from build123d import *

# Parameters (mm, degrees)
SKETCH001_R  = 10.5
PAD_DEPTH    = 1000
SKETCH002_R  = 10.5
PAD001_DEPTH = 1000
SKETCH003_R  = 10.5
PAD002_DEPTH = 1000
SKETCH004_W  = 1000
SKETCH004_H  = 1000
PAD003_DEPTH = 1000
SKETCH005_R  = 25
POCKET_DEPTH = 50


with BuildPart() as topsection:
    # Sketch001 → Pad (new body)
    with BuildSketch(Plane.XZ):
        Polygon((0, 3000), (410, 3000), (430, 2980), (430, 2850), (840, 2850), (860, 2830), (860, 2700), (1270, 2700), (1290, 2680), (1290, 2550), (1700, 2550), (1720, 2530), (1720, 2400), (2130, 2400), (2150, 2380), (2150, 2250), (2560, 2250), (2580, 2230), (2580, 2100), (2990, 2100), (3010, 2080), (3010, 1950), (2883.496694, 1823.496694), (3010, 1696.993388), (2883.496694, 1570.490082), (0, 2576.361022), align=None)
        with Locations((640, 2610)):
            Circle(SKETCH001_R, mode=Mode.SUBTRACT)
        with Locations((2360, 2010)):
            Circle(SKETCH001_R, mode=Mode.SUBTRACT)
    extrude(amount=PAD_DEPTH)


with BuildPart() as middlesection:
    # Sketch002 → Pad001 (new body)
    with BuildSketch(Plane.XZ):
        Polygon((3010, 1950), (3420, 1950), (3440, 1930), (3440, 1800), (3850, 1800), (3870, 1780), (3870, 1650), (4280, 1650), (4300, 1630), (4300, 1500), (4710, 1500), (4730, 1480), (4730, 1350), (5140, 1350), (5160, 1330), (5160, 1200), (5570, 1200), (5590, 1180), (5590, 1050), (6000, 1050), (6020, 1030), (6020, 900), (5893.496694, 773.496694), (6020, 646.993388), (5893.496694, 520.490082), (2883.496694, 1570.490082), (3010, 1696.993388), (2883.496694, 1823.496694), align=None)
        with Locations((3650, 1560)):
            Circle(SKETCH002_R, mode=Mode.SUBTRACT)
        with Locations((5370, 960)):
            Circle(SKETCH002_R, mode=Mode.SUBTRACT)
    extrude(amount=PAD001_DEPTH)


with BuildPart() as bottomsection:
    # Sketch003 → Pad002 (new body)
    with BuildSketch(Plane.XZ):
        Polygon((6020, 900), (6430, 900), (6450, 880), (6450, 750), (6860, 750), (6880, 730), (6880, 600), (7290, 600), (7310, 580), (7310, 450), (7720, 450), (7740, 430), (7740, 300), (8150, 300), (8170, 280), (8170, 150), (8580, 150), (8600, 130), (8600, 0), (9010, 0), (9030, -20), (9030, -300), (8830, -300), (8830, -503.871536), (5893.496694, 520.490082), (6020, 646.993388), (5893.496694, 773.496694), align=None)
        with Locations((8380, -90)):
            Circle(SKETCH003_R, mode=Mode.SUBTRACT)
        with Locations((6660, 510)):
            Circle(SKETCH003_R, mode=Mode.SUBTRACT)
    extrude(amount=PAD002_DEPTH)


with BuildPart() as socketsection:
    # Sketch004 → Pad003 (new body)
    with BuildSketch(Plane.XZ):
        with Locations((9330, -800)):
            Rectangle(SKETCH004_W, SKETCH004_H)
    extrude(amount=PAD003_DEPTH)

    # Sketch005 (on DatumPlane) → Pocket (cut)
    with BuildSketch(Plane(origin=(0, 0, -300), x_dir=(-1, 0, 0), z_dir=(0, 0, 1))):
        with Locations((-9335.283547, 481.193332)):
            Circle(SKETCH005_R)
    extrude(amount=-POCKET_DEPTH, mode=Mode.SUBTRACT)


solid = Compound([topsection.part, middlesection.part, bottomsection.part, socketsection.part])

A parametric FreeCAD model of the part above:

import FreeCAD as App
import Part
import Sketcher

V = App.Vector
Q = App.Units.Quantity

doc = App.newDocument("Part")
body = doc.addObject("PartDesign::Body", "Body")

# Sketch on XZ plane
sketch1 = body.newObject("Sketcher::SketchObject", "Sketch")
sketch1.AttachmentSupport = (doc.getObject("XZ_Plane"), [""])
sketch1.MapMode = "FlatFace"
sketch1.addGeometry([
    Part.LineSegment(V(410, 3000, 0), V(0, 3000, 0)),  # 0
    Part.LineSegment(V(0, 3000, 0), V(0, 2576, 0)),  # 1
    Part.LineSegment(V(0, 2576, 0), V(2883, 1570, 0)),  # 2
    Part.LineSegment(V(2883, 1570, 0), V(3010, 1697, 0)),  # 3
    Part.LineSegment(V(3010, 1697, 0), V(2883, 1823, 0)),  # 4
    Part.LineSegment(V(2883, 1823, 0), V(3010, 1950, 0)),  # 5
    Part.LineSegment(V(3010, 1950, 0), V(3010, 2080, 0)),  # 6
    Part.LineSegment(V(3010, 2080, 0), V(2990, 2100, 0)),  # 7
    Part.LineSegment(V(2990, 2100, 0), V(2580, 2100, 0)),  # 8
    Part.LineSegment(V(2580, 2100, 0), V(2580, 2230, 0)),  # 9
    Part.LineSegment(V(2580, 2230, 0), V(2560, 2250, 0)),  # 10
    Part.LineSegment(V(2560, 2250, 0), V(2150, 2250, 0)),  # 11
    Part.LineSegment(V(2150, 2250, 0), V(2150, 2380, 0)),  # 12
    Part.LineSegment(V(2150, 2380, 0), V(2130, 2400, 0)),  # 13
    Part.LineSegment(V(2130, 2400, 0), V(1720, 2400, 0)),  # 14
    Part.LineSegment(V(1720, 2400, 0), V(1720, 2530, 0)),  # 15
    Part.LineSegment(V(1720, 2530, 0), V(1700, 2550, 0)),  # 16
    Part.LineSegment(V(1700, 2550, 0), V(1290, 2550, 0)),  # 17
    Part.LineSegment(V(1290, 2550, 0), V(1290, 2680, 0)),  # 18
    Part.LineSegment(V(1290, 2680, 0), V(1270, 2700, 0)),  # 19
    Part.LineSegment(V(1270, 2700, 0), V(860, 2700, 0)),  # 20
    Part.LineSegment(V(860, 2700, 0), V(860, 2830, 0)),  # 21
    Part.LineSegment(V(860, 2830, 0), V(840, 2850, 0)),  # 22
    Part.LineSegment(V(840, 2850, 0), V(430, 2850, 0)),  # 23
    Part.LineSegment(V(430, 2850, 0), V(430, 2980, 0)),  # 24
    Part.LineSegment(V(430, 2980, 0), V(410, 3000, 0)),  # 25
    Part.Circle(V(2360, 2010, 0), V(0, 0, 1), 10),  # 26
    Part.Circle(V(640, 2610, 0), V(0, 0, 1), 10),  # 27
], False)
sketch1.addConstraint([
    Sketcher.Constraint("Coincident", 0, 2, 1, 1),
    Sketcher.Constraint("Coincident", 1, 2, 2, 1),
    Sketcher.Constraint("Coincident", 2, 2, 3, 1),
    Sketcher.Constraint("Coincident", 3, 2, 4, 1),
    Sketcher.Constraint("Coincident", 4, 2, 5, 1),
    Sketcher.Constraint("Coincident", 5, 2, 6, 1),
    Sketcher.Constraint("Coincident", 6, 2, 7, 1),
    Sketcher.Constraint("Coincident", 7, 2, 8, 1),
    Sketcher.Constraint("Coincident", 8, 2, 9, 1),
    Sketcher.Constraint("Coincident", 9, 2, 10, 1),
    Sketcher.Constraint("Coincident", 10, 2, 11, 1),
    Sketcher.Constraint("Coincident", 11, 2, 12, 1),
    Sketcher.Constraint("Coincident", 12, 2, 13, 1),
    Sketcher.Constraint("Coincident", 13, 2, 14, 1),
    Sketcher.Constraint("Coincident", 14, 2, 15, 1),
    Sketcher.Constraint("Coincident", 15, 2, 16, 1),
    Sketcher.Constraint("Coincident", 16, 2, 17, 1),
    Sketcher.Constraint("Coincident", 17, 2, 18, 1),
    Sketcher.Constraint("Coincident", 18, 2, 19, 1),
    Sketcher.Constraint("Coincident", 19, 2, 20, 1),
    Sketcher.Constraint("Coincident", 20, 2, 21, 1),
    Sketcher.Constraint("Coincident", 21, 2, 22, 1),
    Sketcher.Constraint("Coincident", 22, 2, 23, 1),
    Sketcher.Constraint("Coincident", 23, 2, 24, 1),
    Sketcher.Constraint("Coincident", 24, 2, 25, 1),
    Sketcher.Constraint("Coincident", 25, 2, 0, 1),
    Sketcher.Constraint("Horizontal", 0),
    Sketcher.Constraint("Vertical", 1),
    Sketcher.Constraint("Vertical", 6),
    Sketcher.Constraint("Horizontal", 8),
    Sketcher.Constraint("Vertical", 9),
    Sketcher.Constraint("Horizontal", 11),
    Sketcher.Constraint("Vertical", 12),
    Sketcher.Constraint("Horizontal", 14),
    Sketcher.Constraint("Vertical", 15),
    Sketcher.Constraint("Horizontal", 17),
    Sketcher.Constraint("Vertical", 18),
    Sketcher.Constraint("Horizontal", 20),
    Sketcher.Constraint("Vertical", 21),
    Sketcher.Constraint("Horizontal", 23),
    Sketcher.Constraint("Vertical", 24),
    Sketcher.Constraint("Equal", 26, 27),
    Sketcher.Constraint("PointOnObject", 0, 2, -2),
    Sketcher.Constraint("Perpendicular", 3, 4),
    Sketcher.Constraint("Perpendicular", 4, 5),
    Sketcher.Constraint("Perpendicular", 5, 7),
    Sketcher.Constraint("Parallel", 7, 10),
    Sketcher.Constraint("Parallel", 10, 13),
    Sketcher.Constraint("Parallel", 13, 16),
    Sketcher.Constraint("Parallel", 16, 19),
    Sketcher.Constraint("Parallel", 19, 22),
    Sketcher.Constraint("Parallel", 22, 25),
    Sketcher.Constraint("Vertical", 2, 2, 4, 2),
    Sketcher.Constraint("Vertical", 3, 2, 5, 2),
    Sketcher.Constraint("Equal", 0, 8),
    Sketcher.Constraint("Equal", 8, 11),
    Sketcher.Constraint("Equal", 11, 14),
    Sketcher.Constraint("Equal", 14, 17),
    Sketcher.Constraint("Equal", 17, 20),
    Sketcher.Constraint("Equal", 20, 23),
    Sketcher.Constraint("Equal", 6, 9),
    Sketcher.Constraint("Equal", 9, 12),
    Sketcher.Constraint("Equal", 12, 15),
    Sketcher.Constraint("Equal", 15, 18),
    Sketcher.Constraint("Equal", 18, 21),
    Sketcher.Constraint("Equal", 21, 24),
    Sketcher.Constraint("Equal", 3, 4),
    Sketcher.Constraint("Equal", 7, 10),
    Sketcher.Constraint("Equal", 10, 13),
    Sketcher.Constraint("Equal", 13, 16),
    Sketcher.Constraint("Equal", 16, 19),
    Sketcher.Constraint("Equal", 19, 22),
    Sketcher.Constraint("Equal", 22, 25),
    Sketcher.Constraint("Diameter", 26, Q("21 mm")),
    Sketcher.Constraint("DistanceX", 0, 2, 0, 1, Q("410 mm")),
    Sketcher.Constraint("DistanceY", 6, 1, 6, 2, Q("130 mm")),
    Sketcher.Constraint("DistanceX", -1, 1, 26, 3, Q("2360 mm")),
    Sketcher.Constraint("DistanceY", -1, 1, 26, 3, Q("2010 mm")),
    Sketcher.Constraint("DistanceX", -1, 1, 27, 3, Q("640 mm")),
    Sketcher.Constraint("DistanceY", -1, 1, 27, 3, Q("2610 mm")),
    Sketcher.Constraint("DistanceY", -1, 1, 0, 2, Q("3000 mm")),
    Sketcher.Constraint("DistanceX", -1, 1, 3, 2, Q("3010 mm")),
    Sketcher.Constraint("Distance", 3, Q("178.902691 mm")),
    Sketcher.Constraint("DistanceY", 1, 2, 1, 1, Q("423.638978 mm")),
])
pad1 = body.newObject("PartDesign::Pad", "Pad")
pad1.Profile = sketch1
pad1.Length = 1000
body2 = doc.addObject("PartDesign::Body", "Body001")

# Sketch on XZ plane
sketch2 = body2.newObject("Sketcher::SketchObject", "Sketch001")
sketch2.AttachmentSupport = (doc.getObject("XZ_Plane001"), [""])
sketch2.MapMode = "FlatFace"
sketch2.addGeometry([
    Part.LineSegment(V(3420, 1950, 0), V(3010, 1950, 0)),  # 0
    Part.LineSegment(V(3010, 1950, 0), V(2883, 1823, 0)),  # 1
    Part.LineSegment(V(2883, 1823, 0), V(3010, 1697, 0)),  # 2
    Part.LineSegment(V(3010, 1697, 0), V(2883, 1570, 0)),  # 3
    Part.LineSegment(V(2883, 1570, 0), V(5893, 520, 0)),  # 4
    Part.LineSegment(V(5893, 520, 0), V(6020, 647, 0)),  # 5
    Part.LineSegment(V(6020, 647, 0), V(5893, 773, 0)),  # 6
    Part.LineSegment(V(5893, 773, 0), V(6020, 900, 0)),  # 7
    Part.LineSegment(V(6020, 900, 0), V(6020, 1030, 0)),  # 8
    Part.LineSegment(V(6020, 1030, 0), V(6000, 1050, 0)),  # 9
    Part.LineSegment(V(6000, 1050, 0), V(5590, 1050, 0)),  # 10
    Part.LineSegment(V(5590, 1050, 0), V(5590, 1180, 0)),  # 11
    Part.LineSegment(V(5590, 1180, 0), V(5570, 1200, 0)),  # 12
    Part.LineSegment(V(5570, 1200, 0), V(5160, 1200, 0)),  # 13
    Part.LineSegment(V(5160, 1200, 0), V(5160, 1330, 0)),  # 14
    Part.LineSegment(V(5160, 1330, 0), V(5140, 1350, 0)),  # 15
    Part.LineSegment(V(5140, 1350, 0), V(4730, 1350, 0)),  # 16
    Part.LineSegment(V(4730, 1350, 0), V(4730, 1480, 0)),  # 17
    Part.LineSegment(V(4730, 1480, 0), V(4710, 1500, 0)),  # 18
    Part.LineSegment(V(4710, 1500, 0), V(4300, 1500, 0)),  # 19
    Part.LineSegment(V(4300, 1500, 0), V(4300, 1630, 0)),  # 20
    Part.LineSegment(V(4300, 1630, 0), V(4280, 1650, 0)),  # 21
    Part.LineSegment(V(4280, 1650, 0), V(3870, 1650, 0)),  # 22
    Part.LineSegment(V(3870, 1650, 0), V(3870, 1780, 0)),  # 23
    Part.LineSegment(V(3870, 1780, 0), V(3850, 1800, 0)),  # 24
    Part.LineSegment(V(3850, 1800, 0), V(3440, 1800, 0)),  # 25
    Part.LineSegment(V(3440, 1800, 0), V(3440, 1930, 0)),  # 26
    Part.LineSegment(V(3440, 1930, 0), V(3420, 1950, 0)),  # 27
    Part.Circle(V(5370, 960, 0), V(0, 0, 1), 10),  # 28
    Part.Circle(V(3650, 1560, 0), V(0, 0, 1), 10),  # 29
], False)
sketch2.addConstraint([
    Sketcher.Constraint("Coincident", 0, 2, 1, 1),
    Sketcher.Constraint("Coincident", 1, 2, 2, 1),
    Sketcher.Constraint("Coincident", 2, 2, 3, 1),
    Sketcher.Constraint("Coincident", 3, 2, 4, 1),
    Sketcher.Constraint("Coincident", 4, 2, 5, 1),
    Sketcher.Constraint("Coincident", 5, 2, 6, 1),
    Sketcher.Constraint("Coincident", 6, 2, 7, 1),
    Sketcher.Constraint("Coincident", 7, 2, 8, 1),
    Sketcher.Constraint("Coincident", 8, 2, 9, 1),
    Sketcher.Constraint("Coincident", 9, 2, 10, 1),
    Sketcher.Constraint("Coincident", 10, 2, 11, 1),
    Sketcher.Constraint("Coincident", 11, 2, 12, 1),
    Sketcher.Constraint("Coincident", 12, 2, 13, 1),
    Sketcher.Constraint("Coincident", 13, 2, 14, 1),
    Sketcher.Constraint("Coincident", 14, 2, 15, 1),
    Sketcher.Constraint("Coincident", 15, 2, 16, 1),
    Sketcher.Constraint("Coincident", 16, 2, 17, 1),
    Sketcher.Constraint("Coincident", 17, 2, 18, 1),
    Sketcher.Constraint("Coincident", 18, 2, 19, 1),
    Sketcher.Constraint("Coincident", 19, 2, 20, 1),
    Sketcher.Constraint("Coincident", 20, 2, 21, 1),
    Sketcher.Constraint("Coincident", 21, 2, 22, 1),
    Sketcher.Constraint("Coincident", 22, 2, 23, 1),
    Sketcher.Constraint("Coincident", 23, 2, 24, 1),
    Sketcher.Constraint("Coincident", 24, 2, 25, 1),
    Sketcher.Constraint("Coincident", 25, 2, 26, 1),
    Sketcher.Constraint("Coincident", 26, 2, 27, 1),
    Sketcher.Constraint("Coincident", 27, 2, 0, 1),
    Sketcher.Constraint("Horizontal", 0),
    Sketcher.Constraint("Vertical", 8),
    Sketcher.Constraint("Horizontal", 10),
    Sketcher.Constraint("Vertical", 11),
    Sketcher.Constraint("Horizontal", 13),
    Sketcher.Constraint("Vertical", 14),
    Sketcher.Constraint("Horizontal", 16),
    Sketcher.Constraint("Vertical", 17),
    Sketcher.Constraint("Horizontal", 19),
    Sketcher.Constraint("Vertical", 20),
    Sketcher.Constraint("Horizontal", 22),
    Sketcher.Constraint("Vertical", 23),
    Sketcher.Constraint("Horizontal", 25),
    Sketcher.Constraint("Vertical", 26),
    Sketcher.Constraint("Equal", 28, 29),
    Sketcher.Constraint("Perpendicular", 1, 2),
    Sketcher.Constraint("Perpendicular", 2, 3),
    Sketcher.Constraint("Parallel", 3, 5),
    Sketcher.Constraint("Perpendicular", 5, 6),
    Sketcher.Constraint("Perpendicular", 6, 7),
    Sketcher.Constraint("Perpendicular", 7, 9),
    Sketcher.Constraint("Parallel", 9, 12),
    Sketcher.Constraint("Parallel", 12, 15),
    Sketcher.Constraint("Parallel", 15, 18),
    Sketcher.Constraint("Parallel", 18, 21),
    Sketcher.Constraint("Parallel", 21, 24),
    Sketcher.Constraint("Parallel", 24, 27),
    Sketcher.Constraint("Vertical", 0, 2, 2, 2),
    Sketcher.Constraint("Vertical", 1, 2, 3, 2),
    Sketcher.Constraint("Vertical", 4, 2, 6, 2),
    Sketcher.Constraint("Vertical", 5, 2, 7, 2),
    Sketcher.Constraint("Equal", 0, 10),
    Sketcher.Constraint("Equal", 10, 13),
    Sketcher.Constraint("Equal", 13, 16),
    Sketcher.Constraint("Equal", 16, 19),
    Sketcher.Constraint("Equal", 19, 22),
    Sketcher.Constraint("Equal", 22, 25),
    Sketcher.Constraint("Equal", 8, 11),
    Sketcher.Constraint("Equal", 11, 14),
    Sketcher.Constraint("Equal", 14, 17),
    Sketcher.Constraint("Equal", 17, 20),
    Sketcher.Constraint("Equal", 20, 23),
    Sketcher.Constraint("Equal", 23, 26),
    Sketcher.Constraint("Equal", 1, 2),
    Sketcher.Constraint("Equal", 3, 5),
    Sketcher.Constraint("Equal", 9, 12),
    Sketcher.Constraint("Equal", 12, 15),
    Sketcher.Constraint("Equal", 15, 18),
    Sketcher.Constraint("Equal", 18, 21),
    Sketcher.Constraint("Equal", 21, 24),
    Sketcher.Constraint("Equal", 24, 27),
    Sketcher.Constraint("Diameter", 28, Q("21 mm")),
    Sketcher.Constraint("DistanceX", 0, 2, 0, 1, Q("410 mm")),
    Sketcher.Constraint("DistanceY", 8, 1, 8, 2, Q("130 mm")),
    Sketcher.Constraint("DistanceX", -1, 1, 28, 3, Q("5370 mm")),
    Sketcher.Constraint("DistanceY", -1, 1, 28, 3, Q("960 mm")),
    Sketcher.Constraint("DistanceX", -1, 1, 29, 3, Q("3650 mm")),
    Sketcher.Constraint("DistanceY", -1, 1, 29, 3, Q("1560 mm")),
    Sketcher.Constraint("DistanceX", -1, 1, 0, 2, Q("3010 mm")),
    Sketcher.Constraint("DistanceY", -1, 1, 0, 2, Q("1950 mm")),
    Sketcher.Constraint("DistanceX", -1, 1, 5, 2, Q("6020 mm")),
    Sketcher.Constraint("Distance", 1, Q("178.902691 mm")),
])
pad2 = body2.newObject("PartDesign::Pad", "Pad001")
pad2.Profile = sketch2
pad2.Length = 1000
body3 = doc.addObject("PartDesign::Body", "Body002")

# Sketch on XZ plane
sketch3 = body3.newObject("Sketcher::SketchObject", "Sketch002")
sketch3.AttachmentSupport = (doc.getObject("XZ_Plane002"), [""])
sketch3.MapMode = "FlatFace"
sketch3.addGeometry([
    Part.LineSegment(V(6430, 900, 0), V(6020, 900, 0)),  # 0
    Part.LineSegment(V(6020, 900, 0), V(5893, 773, 0)),  # 1
    Part.LineSegment(V(5893, 773, 0), V(6020, 647, 0)),  # 2
    Part.LineSegment(V(6020, 647, 0), V(5893, 520, 0)),  # 3
    Part.LineSegment(V(5893, 520, 0), V(8830, -504, 0)),  # 4
    Part.LineSegment(V(8830, -504, 0), V(8830, -300, 0)),  # 5
    Part.LineSegment(V(8830, -300, 0), V(9030, -300, 0)),  # 6
    Part.LineSegment(V(9030, -300, 0), V(9030, -20, 0)),  # 7
    Part.LineSegment(V(9030, -20, 0), V(9010, 0, 0)),  # 8
    Part.LineSegment(V(9010, 0, 0), V(8600, 0, 0)),  # 9
    Part.LineSegment(V(8600, 0, 0), V(8600, 130, 0)),  # 10
    Part.LineSegment(V(8600, 130, 0), V(8580, 150, 0)),  # 11
    Part.LineSegment(V(8580, 150, 0), V(8170, 150, 0)),  # 12
    Part.LineSegment(V(8170, 150, 0), V(8170, 280, 0)),  # 13
    Part.LineSegment(V(8170, 280, 0), V(8150, 300, 0)),  # 14
    Part.LineSegment(V(8150, 300, 0), V(7740, 300, 0)),  # 15
    Part.LineSegment(V(7740, 300, 0), V(7740, 430, 0)),  # 16
    Part.LineSegment(V(7740, 430, 0), V(7720, 450, 0)),  # 17
    Part.LineSegment(V(7720, 450, 0), V(7310, 450, 0)),  # 18
    Part.LineSegment(V(7310, 450, 0), V(7310, 580, 0)),  # 19
    Part.LineSegment(V(7310, 580, 0), V(7290, 600, 0)),  # 20
    Part.LineSegment(V(7290, 600, 0), V(6880, 600, 0)),  # 21
    Part.LineSegment(V(6880, 600, 0), V(6880, 730, 0)),  # 22
    Part.LineSegment(V(6880, 730, 0), V(6860, 750, 0)),  # 23
    Part.LineSegment(V(6860, 750, 0), V(6450, 750, 0)),  # 24
    Part.LineSegment(V(6450, 750, 0), V(6450, 880, 0)),  # 25
    Part.LineSegment(V(6450, 880, 0), V(6430, 900, 0)),  # 26
    Part.Circle(V(8380, -90, 0), V(0, 0, 1), 10),  # 27
    Part.Circle(V(6660, 510, 0), V(0, 0, 1), 10),  # 28
], False)
sketch3.addConstraint([
    Sketcher.Constraint("Coincident", 0, 2, 1, 1),
    Sketcher.Constraint("Coincident", 1, 2, 2, 1),
    Sketcher.Constraint("Coincident", 2, 2, 3, 1),
    Sketcher.Constraint("Coincident", 3, 2, 4, 1),
    Sketcher.Constraint("Coincident", 4, 2, 5, 1),
    Sketcher.Constraint("Coincident", 5, 2, 6, 1),
    Sketcher.Constraint("Coincident", 6, 2, 7, 1),
    Sketcher.Constraint("Coincident", 7, 2, 8, 1),
    Sketcher.Constraint("Coincident", 8, 2, 9, 1),
    Sketcher.Constraint("Coincident", 9, 2, 10, 1),
    Sketcher.Constraint("Coincident", 10, 2, 11, 1),
    Sketcher.Constraint("Coincident", 11, 2, 12, 1),
    Sketcher.Constraint("Coincident", 12, 2, 13, 1),
    Sketcher.Constraint("Coincident", 13, 2, 14, 1),
    Sketcher.Constraint("Coincident", 14, 2, 15, 1),
    Sketcher.Constraint("Coincident", 15, 2, 16, 1),
    Sketcher.Constraint("Coincident", 16, 2, 17, 1),
    Sketcher.Constraint("Coincident", 17, 2, 18, 1),
    Sketcher.Constraint("Coincident", 18, 2, 19, 1),
    Sketcher.Constraint("Coincident", 19, 2, 20, 1),
    Sketcher.Constraint("Coincident", 20, 2, 21, 1),
    Sketcher.Constraint("Coincident", 21, 2, 22, 1),
    Sketcher.Constraint("Coincident", 22, 2, 23, 1),
    Sketcher.Constraint("Coincident", 23, 2, 24, 1),
    Sketcher.Constraint("Coincident", 24, 2, 25, 1),
    Sketcher.Constraint("Coincident", 25, 2, 26, 1),
    Sketcher.Constraint("Coincident", 26, 2, 0, 1),
    Sketcher.Constraint("Horizontal", 0),
    Sketcher.Constraint("Vertical", 5),
    Sketcher.Constraint("Horizontal", 6),
    Sketcher.Constraint("Vertical", 7),
    Sketcher.Constraint("Horizontal", 9),
    Sketcher.Constraint("Vertical", 10),
    Sketcher.Constraint("Horizontal", 12),
    Sketcher.Constraint("Vertical", 13),
    Sketcher.Constraint("Horizontal", 15),
    Sketcher.Constraint("Vertical", 16),
    Sketcher.Constraint("Horizontal", 18),
    Sketcher.Constraint("Vertical", 19),
    Sketcher.Constraint("Horizontal", 21),
    Sketcher.Constraint("Vertical", 22),
    Sketcher.Constraint("Horizontal", 24),
    Sketcher.Constraint("Vertical", 25),
    Sketcher.Constraint("Equal", 27, 28),
    Sketcher.Constraint("PointOnObject", 8, 2, -1),
    Sketcher.Constraint("Perpendicular", 1, 2),
    Sketcher.Constraint("Perpendicular", 2, 3),
    Sketcher.Constraint("Perpendicular", 3, 8),
    Sketcher.Constraint("Parallel", 8, 11),
    Sketcher.Constraint("Parallel", 11, 14),
    Sketcher.Constraint("Parallel", 14, 17),
    Sketcher.Constraint("Parallel", 17, 20),
    Sketcher.Constraint("Parallel", 20, 23),
    Sketcher.Constraint("Parallel", 23, 26),
    Sketcher.Constraint("Vertical", 0, 2, 2, 2),
    Sketcher.Constraint("Vertical", 1, 2, 3, 2),
    Sketcher.Constraint("Equal", 0, 9),
    Sketcher.Constraint("Equal", 9, 12),
    Sketcher.Constraint("Equal", 12, 15),
    Sketcher.Constraint("Equal", 15, 18),
    Sketcher.Constraint("Equal", 18, 21),
    Sketcher.Constraint("Equal", 21, 24),
    Sketcher.Constraint("Equal", 10, 13),
    Sketcher.Constraint("Equal", 13, 16),
    Sketcher.Constraint("Equal", 16, 19),
    Sketcher.Constraint("Equal", 19, 22),
    Sketcher.Constraint("Equal", 22, 25),
    Sketcher.Constraint("Equal", 1, 2),
    Sketcher.Constraint("Equal", 8, 11),
    Sketcher.Constraint("Equal", 11, 14),
    Sketcher.Constraint("Equal", 14, 17),
    Sketcher.Constraint("Equal", 17, 20),
    Sketcher.Constraint("Equal", 20, 23),
    Sketcher.Constraint("Equal", 23, 26),
    Sketcher.Constraint("Diameter", 27, Q("21 mm")),
    Sketcher.Constraint("DistanceX", 0, 2, 0, 1, Q("410 mm")),
    Sketcher.Constraint("DistanceX", 6, 1, 6, 2, Q("200 mm")),
    Sketcher.Constraint("DistanceY", 7, 1, 7, 2, Q("280 mm")),
    Sketcher.Constraint("DistanceY", 10, 1, 10, 2, Q("130 mm")),
    Sketcher.Constraint("DistanceX", -1, 1, 27, 3, Q("8380 mm")),
    Sketcher.Constraint("DistanceY", 27, 3, -1, 1, Q("90 mm")),
    Sketcher.Constraint("DistanceX", -1, 1, 28, 3, Q("6660 mm")),
    Sketcher.Constraint("DistanceY", -1, 1, 28, 3, Q("510 mm")),
    Sketcher.Constraint("DistanceX", -1, 1, 0, 2, Q("6020 mm")),
    Sketcher.Constraint("DistanceY", -1, 1, 0, 2, Q("900 mm")),
    Sketcher.Constraint("Distance", 1, Q("178.902691 mm")),
    Sketcher.Constraint("Distance", 4, Q("3110.043149 mm")),
])
pad3 = body3.newObject("PartDesign::Pad", "Pad002")
pad3.Profile = sketch3
pad3.Length = 1000
body4 = doc.addObject("PartDesign::Body", "Body003")

# Sketch on XZ plane
sketch4 = body4.newObject("Sketcher::SketchObject", "Sketch003")
sketch4.AttachmentSupport = (doc.getObject("XZ_Plane003"), [""])
sketch4.MapMode = "FlatFace"
sketch4.addGeometry([
    Part.LineSegment(V(8830, -300, 0), V(8830, -1300, 0)),
    Part.LineSegment(V(8830, -1300, 0), V(9830, -1300, 0)),
    Part.LineSegment(V(9830, -1300, 0), V(9830, -300, 0)),
    Part.LineSegment(V(9830, -300, 0), V(8830, -300, 0)),
], False)
sketch4.addConstraint([
    Sketcher.Constraint("Coincident", 0, 2, 1, 1),
    Sketcher.Constraint("Coincident", 1, 2, 2, 1),
    Sketcher.Constraint("Coincident", 2, 2, 3, 1),
    Sketcher.Constraint("Coincident", 3, 2, 0, 1),
    Sketcher.Constraint("Vertical", 0),
    Sketcher.Constraint("Horizontal", 1),
    Sketcher.Constraint("Vertical", 2),
    Sketcher.Constraint("Horizontal", 3),
    Sketcher.Constraint("Equal", 3, 0),
    Sketcher.Constraint("DistanceX", 1, 1, 1, 2, Q("1000 mm")),
    Sketcher.Constraint("DistanceX", -1, 1, 0, 2, Q("8830 mm")),
    Sketcher.Constraint("DistanceY", 0, 2, -1, 1, Q("1300 mm")),
])
pad4 = body4.newObject("PartDesign::Pad", "Pad003")
pad4.Profile = sketch4
pad4.Length = 1000

# Sketch on XY plane
sketch5 = body4.newObject("Sketcher::SketchObject", "Sketch004")
sketch5.AttachmentSupport = (doc.getObject("XY_Plane003"), [""])
sketch5.MapMode = "FlatFace"
sketch5.AttachmentOffset = App.Placement(V(0, 0, -300), App.Rotation())
sketch5.addGeometry(Part.Circle(V(9335, -481, 0), V(0, 0, 1), 25), False)
sketch5.addConstraint([
    Sketcher.Constraint("Diameter", 0, Q("50 mm")),
    Sketcher.Constraint("DistanceY", 0, 3, -1, 1, Q("481.193332 mm")),
    Sketcher.Constraint("DistanceX", -1, 1, 0, 3, Q("9335.283547 mm")),
])
pocket1 = body4.newObject("PartDesign::Pocket", "Pocket")
pocket1.Profile = sketch5
pocket1.Length = 50

doc.recompute()
